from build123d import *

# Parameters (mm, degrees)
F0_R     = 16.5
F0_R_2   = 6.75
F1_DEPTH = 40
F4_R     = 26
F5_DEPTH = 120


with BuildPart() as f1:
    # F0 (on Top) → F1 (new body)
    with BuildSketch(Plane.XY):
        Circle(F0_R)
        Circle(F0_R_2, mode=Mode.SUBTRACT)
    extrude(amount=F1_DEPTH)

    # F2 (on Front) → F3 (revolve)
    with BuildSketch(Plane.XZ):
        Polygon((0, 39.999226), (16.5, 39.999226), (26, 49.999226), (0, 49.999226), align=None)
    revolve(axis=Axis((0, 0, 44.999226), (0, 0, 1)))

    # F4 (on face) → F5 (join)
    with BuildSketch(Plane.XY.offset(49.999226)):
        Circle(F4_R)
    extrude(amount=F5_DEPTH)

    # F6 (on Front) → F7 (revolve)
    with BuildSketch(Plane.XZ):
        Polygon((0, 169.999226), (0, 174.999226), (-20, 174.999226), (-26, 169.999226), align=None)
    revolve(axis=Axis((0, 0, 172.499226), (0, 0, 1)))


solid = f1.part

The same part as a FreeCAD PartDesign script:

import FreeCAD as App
import Part
import Sketcher
from FreeCAD import Vector


def add_polygon(sketch, points):
    """Adds a closed chain of lines whose ends are joined by coincident constraints."""
    first, n = sketch.GeometryCount, len(points)
    for a, b in zip(points, points[1:] + points[:1]):
        sketch.addGeometry(Part.LineSegment(App.Vector(*a, 0), App.Vector(*b, 0)), False)
    for i in range(n):
        sketch.addConstraint(Sketcher.Constraint("Coincident", first + i, 2, first + (i + 1) % n, 1))

doc = App.newDocument("Part")
params = doc.addObject("Spreadsheet::Sheet", "Params")
for row, (alias, value) in enumerate([
    ("sketch1_diameter", "33 mm"),
    ("sketch1_diameter2", "13.5 mm"),
    ("pad1_length", "40 mm"),
    ("sketch2_width", "26 mm"),
    ("sketch2_height", "10 mm"),
    ("sketch2_width2", "16.5 mm"),
    ("revolution_angle", "360 deg"),
    ("sketch3_diameter", "52 mm"),
    ("pad2_length", "120 mm"),
    ("sketch4_width", "20 mm"),
    ("sketch4_width2", "26 mm"),
    ("sketch4_height", "5 mm"),
    ("revolution2_angle", "360 deg"),
], start=1):
    params.set(f"A{row}", alias)
    params.set(f"B{row}", "=" + value)
    params.setAlias(f"B{row}", alias)

body = doc.addObject("PartDesign::Body", "Body")

# Sketch on XY plane
sketch1 = body.newObject("Sketcher::SketchObject", "Sketch")
sketch1.AttachmentSupport = (doc.getObject("XY_Plane"), [""])
sketch1.MapMode = "FlatFace"
sketch1.addGeometry([
    Part.Circle(Vector(0, 0, 0), Vector(0, 0, 1), 16),
    Part.Circle(Vector(0, 0, 0), Vector(0, 0, 1), 7),
], False)
sketch1.addConstraint([
    Sketcher.Constraint("Coincident", 0, 3, -1, 1),
    Sketcher.Constraint("Coincident", 1, 3, -1, 1),
    Sketcher.Constraint("Diameter", 0, 33.0),
    Sketcher.Constraint("Diameter", 1, 13.5),
])
sketch1.setExpression("Constraints[2]", "Params.sketch1_diameter")
sketch1.setExpression("Constraints[3]", "Params.sketch1_diameter2")
pad1 = body.newObject("PartDesign::Pad", "Pad")
pad1.Profile = sketch1
pad1.setExpression("Length", "Params.pad1_length")

# Sketch on XZ plane
sketch2 = body.newObject("Sketcher::SketchObject", "Sketch001")
sketch2.AttachmentSupport = (doc.getObject("XZ_Plane"), [""])
sketch2.MapMode = "FlatFace"
add_polygon(sketch2, [(0, 40), (16, 40), (26, 50), (0, 50)])  # lines 0-3
sketch2.addConstraint([
    Sketcher.Constraint("Horizontal", 0),
    Sketcher.Constraint("Horizontal", 2),
    Sketcher.Constraint("Vertical", 3),
    Sketcher.Constraint("PointOnObject", 2, 2, -2),
    Sketcher.Constraint("DistanceX", 2, 2, 2, 1, 26.0),
    Sketcher.Constraint("DistanceY", 3, 2, 3, 1, 10.0),
    Sketcher.Constraint("DistanceX", 0, 1, 0, 2, 16.5),
    Sketcher.Constraint("DistanceY", -1, 1, 0, 2, 39.999226),
])
sketch2.setExpression("Constraints[8]", "Params.sketch2_width")
sketch2.setExpression("Constraints[9]", "Params.sketch2_height")
sketch2.setExpression("Constraints[10]", "Params.sketch2_width2")
revolution = body.newObject("PartDesign::Revolution", "Revolution")
revolution.Profile = sketch2
revolution.ReferenceAxis = (sketch2, ["V_Axis"])
revolution.setExpression("Angle", "Params.revolution_angle")

# Sketch on XY plane
sketch3 = body.newObject("Sketcher::SketchObject", "Sketch002")
sketch3.AttachmentSupport = (doc.getObject("XY_Plane"), [""])
sketch3.MapMode = "FlatFace"
sketch3.AttachmentOffset = App.Placement(Vector(0, 0, 49.999226), App.Rotation())
sketch3.addGeometry(Part.Circle(Vector(0, 0, 0), Vector(0, 0, 1), 26), False)
sketch3.addConstraint([
    Sketcher.Constraint("Coincident", 0, 3, -1, 1),
    Sketcher.Constraint("Diameter", 0, 52.0),
])
sketch3.setExpression("Constraints[1]", "Params.sketch3_diameter")
pad2 = body.newObject("PartDesign::Pad", "Pad001")
pad2.Profile = sketch3
pad2.setExpression("Length", "Params.pad2_length")

# Sketch on XZ plane
sketch4 = body.newObject("Sketcher::SketchObject", "Sketch003")
sketch4.AttachmentSupport = (doc.getObject("XZ_Plane"), [""])
sketch4.MapMode = "FlatFace"
add_polygon(sketch4, [(0, 170), (0, 175), (-20, 175), (-26, 170)])  # lines 0-3
sketch4.addConstraint([
    Sketcher.Constraint("Vertical", 0),
    Sketcher.Constraint("Horizontal", 1),
    Sketcher.Constraint("Horizontal", 3),
    Sketcher.Constraint("PointOnObject", 0, 2, -2),
    Sketcher.Constraint("DistanceX", 1, 2, 1, 1, 20.0),
    Sketcher.Constraint("DistanceX", 3, 1, 3, 2, 26.0),
    Sketcher.Constraint("DistanceY", 0, 1, 0, 2, 5.0),
    Sketcher.Constraint("DistanceY", -1, 1, 0, 2, 174.999226),
])
sketch4.setExpression("Constraints[8]", "Params.sketch4_width")
sketch4.setExpression("Constraints[9]", "Params.sketch4_width2")
sketch4.setExpression("Constraints[10]", "Params.sketch4_height")
revolution2 = body.newObject("PartDesign::Revolution", "Revolution001")
revolution2.Profile = sketch4
revolution2.ReferenceAxis = (sketch4, ["V_Axis"])
revolution2.setExpression("Angle", "Params.revolution2_angle")

doc.recompute()
